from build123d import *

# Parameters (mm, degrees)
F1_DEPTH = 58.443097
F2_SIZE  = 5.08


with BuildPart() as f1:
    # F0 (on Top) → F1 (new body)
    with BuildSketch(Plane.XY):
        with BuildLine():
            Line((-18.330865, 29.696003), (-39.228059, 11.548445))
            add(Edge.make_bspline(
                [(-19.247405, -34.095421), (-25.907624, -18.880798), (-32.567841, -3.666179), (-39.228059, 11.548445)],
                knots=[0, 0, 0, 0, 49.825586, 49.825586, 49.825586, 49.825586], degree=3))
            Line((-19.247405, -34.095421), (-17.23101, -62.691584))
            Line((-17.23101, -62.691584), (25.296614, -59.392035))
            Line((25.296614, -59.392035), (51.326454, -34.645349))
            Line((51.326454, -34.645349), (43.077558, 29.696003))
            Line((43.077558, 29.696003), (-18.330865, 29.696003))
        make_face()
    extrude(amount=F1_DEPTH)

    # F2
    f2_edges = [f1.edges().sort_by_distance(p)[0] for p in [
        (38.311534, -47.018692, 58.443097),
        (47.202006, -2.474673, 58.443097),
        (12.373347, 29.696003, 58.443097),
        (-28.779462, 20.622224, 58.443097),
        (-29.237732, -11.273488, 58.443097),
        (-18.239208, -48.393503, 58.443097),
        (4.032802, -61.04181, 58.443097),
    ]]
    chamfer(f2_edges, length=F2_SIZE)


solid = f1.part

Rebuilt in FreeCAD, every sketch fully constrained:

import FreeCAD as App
import Part
import Sketcher
Q = App.Units.Quantity


def edges_at(feature, points):
    """Names of the edges that pass closest to the given points."""
    edges = feature.Shape.Edges
    near = lambda p: min(range(len(edges)), key=lambda i: edges[i].distToShape(Part.Vertex(*p))[0])
    return sorted({f"Edge{near(p) + 1}" for p in points})

doc = App.newDocument("Part")
body = doc.addObject("PartDesign::Body", "Body")

sketch1 = body.newObject("Sketcher::SketchObject", "Sketch")
sketch1.AttachmentSupport = (doc.getObject("XY_Plane"), [""])
sketch1.MapMode = "FlatFace"
sketch1.addGeometry(Part.LineSegment(App.Vector(-18.330865, 29.696003, 0), App.Vector(-39.228059, 11.548445, 0)), False)
sketch1.addGeometry(Part.BSplineCurve([App.Vector(-19.247405, -34.095421, 0), App.Vector(-25.907624, -18.880798, 0), App.Vector(-32.567841, -3.666179, 0), App.Vector(-39.228059, 11.548445, 0)], [4, 4], [0, 49.825586], False, 3, [1, 1, 1, 1], False), False)
sketch1.addGeometry(Part.LineSegment(App.Vector(-19.247405, -34.095421, 0), App.Vector(-17.23101, -62.691584, 0)), False)
sketch1.addGeometry(Part.LineSegment(App.Vector(-17.23101, -62.691584, 0), App.Vector(25.296614, -59.392035, 0)), False)
sketch1.addGeometry(Part.LineSegment(App.Vector(25.296614, -59.392035, 0), App.Vector(51.326454, -34.645349, 0)), False)
sketch1.addGeometry(Part.LineSegment(App.Vector(51.326454, -34.645349, 0), App.Vector(43.077558, 29.696003, 0)), False)
sketch1.addGeometry(Part.LineSegment(App.Vector(43.077558, 29.696003, 0), App.Vector(-18.330865, 29.696003, 0)), False)
sketch1.addConstraint(Sketcher.Constraint("Block", 1))
sketch1.addConstraint(Sketcher.Constraint("Coincident", 0, 2, 1, 2))
sketch1.addConstraint(Sketcher.Constraint("Coincident", 1, 1, 2, 1))
sketch1.addConstraint(Sketcher.Constraint("Coincident", 2, 2, 3, 1))
sketch1.addConstraint(Sketcher.Constraint("Coincident", 3, 2, 4, 1))
sketch1.addConstraint(Sketcher.Constraint("Coincident", 4, 2, 5, 1))
sketch1.addConstraint(Sketcher.Constraint("Coincident", 5, 2, 6, 1))
sketch1.addConstraint(Sketcher.Constraint("Coincident", 6, 2, 0, 1))
sketch1.addConstraint(Sketcher.Constraint("Horizontal", 6))
sketch1.addConstraint(Sketcher.Constraint("Distance", 3, Q("42.655431 mm")))
sketch1.addConstraint(Sketcher.Constraint("Distance", 4, Q("35.915888 mm")))
sketch1.addConstraint(Sketcher.Constraint("DistanceX", 6, 2, 6, 1, Q("61.408423 mm")))
sketch1.addConstraint(Sketcher.Constraint("DistanceX", 2, 2, -1, 1, Q("17.23101 mm")))
sketch1.addConstraint(Sketcher.Constraint("DistanceY", 4, 2, -1, 1, Q("34.645349 mm")))
sketch1.addConstraint(Sketcher.Constraint("DistanceX", -1, 1, 5, 2, Q("43.077558 mm")))
sketch1.addConstraint(Sketcher.Constraint("DistanceY", 2, 2, 0, 2, Q("74.240029 mm")))
sketch1.addConstraint(Sketcher.Constraint("DistanceY", 2, 2, 3, 2, Q("3.299549 mm")))
sketch1.addConstraint(Sketcher.Constraint("DistanceY", 4, 2, 5, 2, Q("64.341352 mm")))
pad1 = body.newObject("PartDesign::Pad", "Pad")
pad1.Profile = sketch1
pad1.Length = 58.443097
doc.recompute()

chamfer = body.newObject("PartDesign::Chamfer", "Chamfer")
chamfer.Base = (pad1, edges_at(pad1, [
    (38.312, -47.019, 58.443),
    (47.202, -2.475, 58.443),
    (12.373, 29.696, 58.443),
    (-28.779, 20.622, 58.443),
    (-29.238, -11.273, 58.443),
    (-18.239, -48.394, 58.443),
    (4.033, -61.042, 58.443),
]))
chamfer.Size = Q("0.2 in")

doc.recompute()
